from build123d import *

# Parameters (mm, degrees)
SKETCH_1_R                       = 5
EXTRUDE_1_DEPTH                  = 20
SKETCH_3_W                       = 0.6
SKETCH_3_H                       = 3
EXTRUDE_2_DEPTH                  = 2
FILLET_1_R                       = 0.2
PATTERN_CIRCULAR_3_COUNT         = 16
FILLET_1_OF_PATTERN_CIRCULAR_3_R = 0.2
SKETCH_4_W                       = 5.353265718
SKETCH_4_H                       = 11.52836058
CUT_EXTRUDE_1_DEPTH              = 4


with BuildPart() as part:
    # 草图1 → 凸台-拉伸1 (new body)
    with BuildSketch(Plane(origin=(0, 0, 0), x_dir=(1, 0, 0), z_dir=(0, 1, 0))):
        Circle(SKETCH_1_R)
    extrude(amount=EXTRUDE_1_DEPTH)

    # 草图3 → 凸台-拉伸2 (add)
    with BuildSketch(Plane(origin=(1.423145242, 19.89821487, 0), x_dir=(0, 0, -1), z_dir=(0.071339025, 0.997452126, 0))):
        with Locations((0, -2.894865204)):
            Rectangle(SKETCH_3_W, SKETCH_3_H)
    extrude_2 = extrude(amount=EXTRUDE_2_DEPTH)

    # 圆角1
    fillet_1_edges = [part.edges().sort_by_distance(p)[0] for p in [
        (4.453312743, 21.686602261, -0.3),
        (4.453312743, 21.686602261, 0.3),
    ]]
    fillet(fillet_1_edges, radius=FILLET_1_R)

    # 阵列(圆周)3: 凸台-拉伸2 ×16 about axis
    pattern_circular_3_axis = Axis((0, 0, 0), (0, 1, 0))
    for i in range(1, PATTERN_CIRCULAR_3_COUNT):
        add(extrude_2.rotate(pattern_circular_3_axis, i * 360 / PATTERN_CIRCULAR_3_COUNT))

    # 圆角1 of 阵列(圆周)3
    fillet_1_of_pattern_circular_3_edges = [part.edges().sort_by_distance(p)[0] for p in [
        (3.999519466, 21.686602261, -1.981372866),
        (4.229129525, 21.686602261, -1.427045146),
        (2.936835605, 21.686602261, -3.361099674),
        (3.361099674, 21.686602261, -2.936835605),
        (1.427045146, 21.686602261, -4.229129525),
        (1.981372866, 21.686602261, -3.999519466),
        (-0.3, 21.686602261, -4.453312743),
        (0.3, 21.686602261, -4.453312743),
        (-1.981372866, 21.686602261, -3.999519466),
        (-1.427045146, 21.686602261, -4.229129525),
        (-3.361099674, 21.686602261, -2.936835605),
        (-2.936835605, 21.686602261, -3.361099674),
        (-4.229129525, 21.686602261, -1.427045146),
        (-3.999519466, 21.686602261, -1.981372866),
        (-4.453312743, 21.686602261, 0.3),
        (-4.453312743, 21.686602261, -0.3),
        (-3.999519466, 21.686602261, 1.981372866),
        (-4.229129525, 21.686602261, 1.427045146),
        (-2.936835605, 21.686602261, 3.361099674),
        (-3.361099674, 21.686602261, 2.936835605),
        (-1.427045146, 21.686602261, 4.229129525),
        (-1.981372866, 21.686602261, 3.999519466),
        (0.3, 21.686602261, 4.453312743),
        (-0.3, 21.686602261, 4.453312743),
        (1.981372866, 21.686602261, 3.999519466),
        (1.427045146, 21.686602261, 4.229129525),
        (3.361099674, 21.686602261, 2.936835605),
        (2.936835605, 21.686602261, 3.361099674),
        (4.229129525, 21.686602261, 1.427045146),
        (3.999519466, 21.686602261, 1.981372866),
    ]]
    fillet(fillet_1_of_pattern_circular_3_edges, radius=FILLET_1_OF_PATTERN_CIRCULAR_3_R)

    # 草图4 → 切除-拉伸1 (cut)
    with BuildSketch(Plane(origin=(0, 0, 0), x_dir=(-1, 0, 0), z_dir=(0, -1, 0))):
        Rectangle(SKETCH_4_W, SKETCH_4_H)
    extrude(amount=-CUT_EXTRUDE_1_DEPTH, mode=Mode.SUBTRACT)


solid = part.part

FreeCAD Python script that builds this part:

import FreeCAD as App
import Part
import Sketcher
from FreeCAD import Vector


def edges_at(feature, points):
    """Names of the edges that pass closest to the given points."""
    edges = feature.Shape.Edges
    near = lambda p: min(range(len(edges)), key=lambda i: edges[i].distToShape(Part.Vertex(*p))[0])
    return sorted({f"Edge{near(p) + 1}" for p in points})

doc = App.newDocument("Part")
body = doc.addObject("PartDesign::Body", "Body")

# Sketch on XZ plane
sketch1 = doc.addObject("Sketcher::SketchObject", "Sketch")
body.addObject(sketch1)
sketch1.AttachmentSupport = (doc.XZ_Plane, [""])
sketch1.MapMode = "FlatFace"
sketch1.addGeometry(Part.Circle(Vector(0, 0, 0), Vector(0, 0, 1), 5), False)
sketch1.addConstraint([
    Sketcher.Constraint("Coincident", 0, 3, -1, 1),
    Sketcher.Constraint("Diameter", 0, 10.0),
])
pad1 = doc.addObject("PartDesign::Pad", "Pad")
body.addObject(pad1)
pad1.Profile = sketch1
pad1.Length = 20
pad1.Reversed = True

# Sketch on an angled plane
sketch2 = doc.addObject("Sketcher::SketchObject", "Sketch001")
body.addObject(sketch2)
sketch2.Placement = App.Placement(Vector(1.423145, 19.898215, 0), App.Rotation(Vector(0, 0, -1), Vector(-0.997452126, 0.071339025, 0), Vector(0.071339025, 0.997452126, 0), "ZXY"))
sketch2.addGeometry([
    Part.LineSegment(Vector(-0.3, -1.394865, 0), Vector(-0.3, -4.394865, 0)),
    Part.LineSegment(Vector(-0.3, -4.394865, 0), Vector(0.3, -4.394865, 0)),
    Part.LineSegment(Vector(0.3, -4.394865, 0), Vector(0.3, -1.394865, 0)),
    Part.LineSegment(Vector(0.3, -1.394865, 0), Vector(-0.3, -1.394865, 0)),
], False)
sketch2.addConstraint([
    Sketcher.Constraint("Coincident", 0, 2, 1, 1),
    Sketcher.Constraint("Coincident", 1, 2, 2, 1),
    Sketcher.Constraint("Coincident", 2, 2, 3, 1),
    Sketcher.Constraint("Coincident", 3, 2, 0, 1),
    Sketcher.Constraint("Vertical", 0),
    Sketcher.Constraint("Horizontal", 1),
    Sketcher.Constraint("Vertical", 2),
    Sketcher.Constraint("Horizontal", 3),
    Sketcher.Constraint("DistanceY", 0, 2, 0, 1, 3.0),
    Sketcher.Constraint("DistanceX", 1, 1, 1, 2, 0.6),
    Sketcher.Constraint("DistanceX", 0, 2, -1, 1, 0.3),
    Sketcher.Constraint("DistanceY", 0, 2, -1, 1, 4.394865),
])
pad2 = doc.addObject("PartDesign::Pad", "Pad001")
body.addObject(pad2)
pad2.Profile = sketch2
pad2.Length = 2
doc.recompute()

fillet = doc.addObject("PartDesign::Fillet", "Fillet")
body.addObject(fillet)
fillet.Base = (pad2, edges_at(pad2, [(4.453, 21.687, -0.3), (4.453, 21.687, 0.3)]))
fillet.Radius = 0.2
doc.recompute()

polarpattern = doc.addObject("PartDesign::PolarPattern", "PolarPattern")
body.addObject(polarpattern)
polarpattern.Originals = [pad2]
polarpattern.Axis = (doc.Y_Axis, [""])
polarpattern.Angle = 360
polarpattern.Occurrences = 16
body.Tip = polarpattern
doc.recompute()

fillet2 = doc.addObject("PartDesign::Fillet", "Fillet001")
body.addObject(fillet2)
fillet2.Base = (polarpattern, edges_at(polarpattern, [
    (4, 21.687, -1.981),
    (4.229, 21.687, -1.427),
    (2.937, 21.687, -3.361),
    (3.361, 21.687, -2.937),
    (1.427, 21.687, -4.229),
    (1.981, 21.687, -4),
    (-0.3, 21.687, -4.453),
    (0.3, 21.687, -4.453),
    (-1.981, 21.687, -4),
    (-1.427, 21.687, -4.229),
    (-3.361, 21.687, -2.937),
    (-2.937, 21.687, -3.361),
    (-4.229, 21.687, -1.427),
    (-4, 21.687, -1.981),
    (-4.453, 21.687, 0.3),
    (-4.453, 21.687, -0.3),
    (-4, 21.687, 1.981),
    (-4.229, 21.687, 1.427),
    (-2.937, 21.687, 3.361),
    (-3.361, 21.687, 2.937),
    (-1.427, 21.687, 4.229),
    (-1.981, 21.687, 4),
    (0.3, 21.687, 4.453),
    (-0.3, 21.687, 4.453),
    (1.981, 21.687, 4),
    (1.427, 21.687, 4.229),
    (3.361, 21.687, 2.937),
    (2.937, 21.687, 3.361),
    (4.229, 21.687, 1.427),
    (4, 21.687, 1.981),
]))
fillet2.Radius = 0.2

# Sketch on XZ plane
sketch3 = doc.addObject("Sketcher::SketchObject", "Sketch002")
body.addObject(sketch3)
sketch3.AttachmentSupport = (doc.XZ_Plane, [""])
sketch3.MapMode = "FlatFace"
sketch3.addGeometry([
    Part.LineSegment(Vector(2.676633, -5.76418, 0), Vector(2.676633, 5.76418, 0)),
    Part.LineSegment(Vector(2.676633, 5.76418, 0), Vector(-2.676633, 5.76418, 0)),
    Part.LineSegment(Vector(-2.676633, 5.76418, 0), Vector(-2.676633, -5.76418, 0)),
    Part.LineSegment(Vector(-2.676633, -5.76418, 0), Vector(2.676633, -5.76418, 0)),
], False)
sketch3.addConstraint([
    Sketcher.Constraint("Coincident", 0, 2, 1, 1),
    Sketcher.Constraint("Coincident", 1, 2, 2, 1),
    Sketcher.Constraint("Coincident", 2, 2, 3, 1),
    Sketcher.Constraint("Coincident", 3, 2, 0, 1),
    Sketcher.Constraint("Vertical", 0),
    Sketcher.Constraint("Horizontal", 1),
    Sketcher.Constraint("Vertical", 2),
    Sketcher.Constraint("Horizontal", 3),
    Sketcher.Constraint("Symmetric", 0, 2, 2, 2, -1, 1),
    Sketcher.Constraint("DistanceY", 0, 1, 0, 2, 11.528361),
    Sketcher.Constraint("DistanceX", 1, 2, 1, 1, 5.353266),
])
pocket1 = doc.addObject("PartDesign::Pocket", "Pocket")
body.addObject(pocket1)
pocket1.Profile = sketch3
pocket1.Length = 4

doc.recompute()
